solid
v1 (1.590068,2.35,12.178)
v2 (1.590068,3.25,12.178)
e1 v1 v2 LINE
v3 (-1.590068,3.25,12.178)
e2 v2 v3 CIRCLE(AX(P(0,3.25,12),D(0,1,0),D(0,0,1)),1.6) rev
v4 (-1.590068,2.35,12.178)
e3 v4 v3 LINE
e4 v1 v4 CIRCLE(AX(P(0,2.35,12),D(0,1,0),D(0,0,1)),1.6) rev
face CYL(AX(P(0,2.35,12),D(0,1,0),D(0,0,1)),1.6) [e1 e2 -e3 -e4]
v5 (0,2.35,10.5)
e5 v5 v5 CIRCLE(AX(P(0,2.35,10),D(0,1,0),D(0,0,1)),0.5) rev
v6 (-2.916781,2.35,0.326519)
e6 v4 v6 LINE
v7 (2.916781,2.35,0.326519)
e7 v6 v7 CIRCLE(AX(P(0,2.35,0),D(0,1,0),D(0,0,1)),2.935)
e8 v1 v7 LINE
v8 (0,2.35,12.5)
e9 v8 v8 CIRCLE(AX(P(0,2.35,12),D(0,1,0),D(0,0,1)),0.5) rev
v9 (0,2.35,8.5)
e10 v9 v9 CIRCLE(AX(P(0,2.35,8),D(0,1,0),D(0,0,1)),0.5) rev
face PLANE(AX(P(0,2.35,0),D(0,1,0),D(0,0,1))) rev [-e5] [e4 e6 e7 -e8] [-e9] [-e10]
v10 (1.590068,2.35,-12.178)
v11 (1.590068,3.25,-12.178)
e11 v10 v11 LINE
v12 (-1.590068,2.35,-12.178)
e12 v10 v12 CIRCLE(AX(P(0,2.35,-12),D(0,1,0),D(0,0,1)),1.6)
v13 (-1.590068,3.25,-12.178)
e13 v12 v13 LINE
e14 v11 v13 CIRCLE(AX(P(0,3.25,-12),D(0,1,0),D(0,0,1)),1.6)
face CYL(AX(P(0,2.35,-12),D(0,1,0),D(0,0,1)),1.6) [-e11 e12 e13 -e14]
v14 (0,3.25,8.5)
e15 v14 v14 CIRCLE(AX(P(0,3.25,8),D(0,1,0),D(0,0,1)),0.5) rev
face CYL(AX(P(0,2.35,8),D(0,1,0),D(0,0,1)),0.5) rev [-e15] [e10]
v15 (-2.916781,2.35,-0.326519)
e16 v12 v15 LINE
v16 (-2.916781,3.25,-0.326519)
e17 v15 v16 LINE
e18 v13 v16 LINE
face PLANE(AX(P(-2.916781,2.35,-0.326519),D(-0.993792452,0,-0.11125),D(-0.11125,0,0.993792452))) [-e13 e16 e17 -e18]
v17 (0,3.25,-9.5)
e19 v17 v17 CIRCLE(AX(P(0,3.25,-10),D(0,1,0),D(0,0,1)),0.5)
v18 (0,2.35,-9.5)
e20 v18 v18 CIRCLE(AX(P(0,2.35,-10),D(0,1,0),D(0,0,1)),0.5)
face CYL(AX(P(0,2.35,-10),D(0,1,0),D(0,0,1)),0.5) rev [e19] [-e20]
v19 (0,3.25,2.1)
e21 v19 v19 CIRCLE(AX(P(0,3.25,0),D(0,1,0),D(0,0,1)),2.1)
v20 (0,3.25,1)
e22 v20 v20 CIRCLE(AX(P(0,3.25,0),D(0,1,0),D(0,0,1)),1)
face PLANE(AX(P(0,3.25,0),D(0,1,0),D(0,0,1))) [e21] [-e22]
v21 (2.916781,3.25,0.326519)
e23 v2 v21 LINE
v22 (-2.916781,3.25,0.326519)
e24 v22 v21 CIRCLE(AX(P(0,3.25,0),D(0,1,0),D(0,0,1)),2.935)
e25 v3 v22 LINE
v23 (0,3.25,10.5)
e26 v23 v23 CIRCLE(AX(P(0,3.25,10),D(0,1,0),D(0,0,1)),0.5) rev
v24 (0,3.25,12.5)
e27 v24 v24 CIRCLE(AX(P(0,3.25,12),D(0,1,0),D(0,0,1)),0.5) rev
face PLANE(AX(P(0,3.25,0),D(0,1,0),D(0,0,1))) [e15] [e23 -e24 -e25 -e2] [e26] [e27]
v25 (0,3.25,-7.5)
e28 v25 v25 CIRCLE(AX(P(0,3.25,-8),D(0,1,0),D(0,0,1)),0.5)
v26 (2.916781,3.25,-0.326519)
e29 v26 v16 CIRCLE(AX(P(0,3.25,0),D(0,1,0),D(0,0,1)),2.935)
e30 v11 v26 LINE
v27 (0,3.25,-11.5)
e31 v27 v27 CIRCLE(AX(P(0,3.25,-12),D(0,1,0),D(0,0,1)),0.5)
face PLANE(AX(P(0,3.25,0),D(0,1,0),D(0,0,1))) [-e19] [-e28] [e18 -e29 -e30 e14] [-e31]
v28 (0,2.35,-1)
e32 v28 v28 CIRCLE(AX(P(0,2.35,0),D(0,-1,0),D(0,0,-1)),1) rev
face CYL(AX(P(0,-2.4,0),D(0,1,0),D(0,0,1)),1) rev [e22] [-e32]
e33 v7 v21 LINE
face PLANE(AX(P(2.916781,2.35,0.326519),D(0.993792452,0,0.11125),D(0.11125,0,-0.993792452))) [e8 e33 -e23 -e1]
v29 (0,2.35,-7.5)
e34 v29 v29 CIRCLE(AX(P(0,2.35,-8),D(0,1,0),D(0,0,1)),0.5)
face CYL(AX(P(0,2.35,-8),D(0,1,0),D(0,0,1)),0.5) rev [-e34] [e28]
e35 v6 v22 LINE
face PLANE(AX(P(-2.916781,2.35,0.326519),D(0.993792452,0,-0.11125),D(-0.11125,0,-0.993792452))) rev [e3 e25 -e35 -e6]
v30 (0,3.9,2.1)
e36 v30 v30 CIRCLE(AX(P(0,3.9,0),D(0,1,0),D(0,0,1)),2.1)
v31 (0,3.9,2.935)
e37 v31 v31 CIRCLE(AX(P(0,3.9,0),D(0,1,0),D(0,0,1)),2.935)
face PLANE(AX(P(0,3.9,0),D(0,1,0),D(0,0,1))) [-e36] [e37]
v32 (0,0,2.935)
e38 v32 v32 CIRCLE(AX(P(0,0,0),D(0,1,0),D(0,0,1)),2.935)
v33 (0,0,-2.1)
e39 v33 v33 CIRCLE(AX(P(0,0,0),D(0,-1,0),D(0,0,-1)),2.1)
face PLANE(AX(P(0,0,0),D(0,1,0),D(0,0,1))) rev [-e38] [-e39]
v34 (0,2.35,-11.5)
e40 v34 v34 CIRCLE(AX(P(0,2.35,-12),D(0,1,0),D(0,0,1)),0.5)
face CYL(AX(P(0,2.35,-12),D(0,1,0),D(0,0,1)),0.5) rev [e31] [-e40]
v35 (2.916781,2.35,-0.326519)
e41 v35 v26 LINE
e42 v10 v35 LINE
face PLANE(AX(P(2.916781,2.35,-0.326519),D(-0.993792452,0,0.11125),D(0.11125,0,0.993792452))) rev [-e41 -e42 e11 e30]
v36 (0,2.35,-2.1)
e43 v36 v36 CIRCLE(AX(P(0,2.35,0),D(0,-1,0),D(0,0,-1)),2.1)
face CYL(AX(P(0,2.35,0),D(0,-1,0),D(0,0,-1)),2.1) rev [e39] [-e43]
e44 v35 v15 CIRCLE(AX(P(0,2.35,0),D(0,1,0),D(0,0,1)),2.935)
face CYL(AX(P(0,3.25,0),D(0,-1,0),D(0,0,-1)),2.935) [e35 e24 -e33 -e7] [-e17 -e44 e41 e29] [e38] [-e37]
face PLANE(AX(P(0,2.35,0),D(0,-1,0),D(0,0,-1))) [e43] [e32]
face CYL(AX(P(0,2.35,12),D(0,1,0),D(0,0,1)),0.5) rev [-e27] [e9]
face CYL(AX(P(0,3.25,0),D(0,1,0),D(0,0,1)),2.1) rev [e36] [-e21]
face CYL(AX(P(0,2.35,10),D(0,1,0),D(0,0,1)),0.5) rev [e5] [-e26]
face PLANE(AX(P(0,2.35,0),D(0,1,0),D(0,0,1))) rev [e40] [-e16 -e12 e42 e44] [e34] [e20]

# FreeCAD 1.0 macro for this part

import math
import FreeCAD as App
import Part
import Sketcher
from FreeCAD import Vector

doc = App.newDocument("Part")
body = doc.addObject("PartDesign::Body", "Body")

# Sketch on XZ plane
sketch1 = doc.addObject("Sketcher::SketchObject", "Sketch")
body.addObject(sketch1)
sketch1.AttachmentSupport = (doc.XZ_Plane, [""])
sketch1.MapMode = "FlatFace"
sketch1.addGeometry(Part.Circle(Vector(0, 0, 0), Vector(0, 0, 1), 2.935), False)
sketch1.addConstraint([
    Sketcher.Constraint("Coincident", 0, 3, -1, 1),
    Sketcher.Constraint("Diameter", 0, 5.87),
])
pad1 = doc.addObject("PartDesign::Pad", "Pad")
body.addObject(pad1)
pad1.Profile = sketch1
pad1.Length = 3.25
pad1.Reversed = True

# Sketch on XZ plane
sketch2 = doc.addObject("Sketcher::SketchObject", "Sketch001")
body.addObject(sketch2)
sketch2.AttachmentSupport = (doc.XZ_Plane, [""])
sketch2.MapMode = "FlatFace"
sketch2.AttachmentOffset = App.Placement(Vector(0, 0, -3.25), App.Rotation())
sketch2.addGeometry([
    Part.ArcOfCircle(Part.Circle(Vector(0, 0, 0), Vector(0, 0, 1), 2.935), math.radians(-173.612622), math.radians(-90)),  # 0
    Part.ArcOfCircle(Part.Circle(Vector(0, 0, 0), Vector(0, 0, 1), 2.935), math.radians(-90), math.radians(-6.387378)),  # 1
    Part.LineSegment(Vector(2.916781, -0.326519, 0), Vector(1.590068, -12.178, 0)),  # 2
    Part.ArcOfCircle(Part.Circle(Vector(0, -12, 0), Vector(0, 0, 1), 1.6), math.radians(-173.612622), math.radians(-6.387378)),  # 3
    Part.LineSegment(Vector(-1.590068, -12.178, 0), Vector(-2.916781, -0.326519, 0)),  # 4
    Part.Circle(Vector(0, -8, 0), Vector(0, 0, 1), 0.5),  # 5
    Part.Circle(Vector(0, -10, 0), Vector(0, 0, 1), 0.5),  # 6
    Part.Circle(Vector(0, -12, 0), Vector(0, 0, 1), 0.5),  # 7
    Part.LineSegment(Vector(1.590068, 12.178, 0), Vector(2.916781, 0.326519, 0)),  # 8
    Part.ArcOfCircle(Part.Circle(Vector(0, 0, 0), Vector(0, 0, 1), 2.935), math.radians(6.387378), math.radians(173.612622)),  # 9
    Part.LineSegment(Vector(-2.916781, 0.326519, 0), Vector(-1.590068, 12.178, 0)),  # 10
    Part.ArcOfCircle(Part.Circle(Vector(0, 12, 0), Vector(0, 0, 1), 1.6), math.radians(6.387378), math.radians(173.612622)),  # 11
    Part.Circle(Vector(0, 12, 0), Vector(0, 0, 1), 0.5),  # 12
    Part.Circle(Vector(0, 10, 0), Vector(0, 0, 1), 0.5),  # 13
    Part.Circle(Vector(0, 8, 0), Vector(0, 0, 1), 0.5),  # 14
], False)
sketch2.addConstraint([
    Sketcher.Constraint("Tangent", 0, 2, 1, 1),
    Sketcher.Constraint("Tangent", 1, 2, 2, 1),
    Sketcher.Constraint("Tangent", 2, 2, 3, 2),
    Sketcher.Constraint("Tangent", 3, 1, 4, 1),
    Sketcher.Constraint("Tangent", 4, 2, 0, 1),
    Sketcher.Constraint("Tangent", 8, 2, 9, 1),
    Sketcher.Constraint("Tangent", 9, 2, 10, 1),
    Sketcher.Constraint("Tangent", 10, 2, 11, 2),
    Sketcher.Constraint("Tangent", 11, 1, 8, 1),
    Sketcher.Constraint("Coincident", 0, 3, -1, 1),
    Sketcher.Constraint("Coincident", 9, 3, -1, 1),
    Sketcher.Constraint("Coincident", 7, 3, 3, 3),
    Sketcher.Constraint("Coincident", 12, 3, 11, 3),
    Sketcher.Constraint("Equal", 0, 1),
    Sketcher.Constraint("Equal", 5, 6),
    Sketcher.Constraint("Equal", 6, 7),
    Sketcher.Constraint("Equal", 1, 9),
    Sketcher.Constraint("Equal", 3, 11),
    Sketcher.Constraint("Equal", 7, 12),
    Sketcher.Constraint("Equal", 12, 13),
    Sketcher.Constraint("Equal", 13, 14),
    Sketcher.Constraint("Symmetric", 3, 3, 11, 3, -1, 1),
    Sketcher.Constraint("Symmetric", 6, 3, 13, 3, -1, 1),
    Sketcher.Constraint("Symmetric", 5, 3, 14, 3, -1, 1),
    Sketcher.Constraint("PointOnObject", 3, 3, -2),
    Sketcher.Constraint("PointOnObject", 5, 3, -2),
    Sketcher.Constraint("PointOnObject", 6, 3, -2),
    Sketcher.Constraint("PointOnObject", 0, 2, -2),
    Sketcher.Constraint("Diameter", 5, 1.0),
    Sketcher.Constraint("Radius", 3, 1.6),
    Sketcher.Constraint("DistanceY", 3, 3, -1, 1, 12.0),
    Sketcher.Constraint("DistanceY", 5, 3, -1, 1, 8.0),
    Sketcher.Constraint("DistanceY", 6, 3, -1, 1, 10.0),
    Sketcher.Constraint("Radius", 0, 2.935),
])
pad2 = doc.addObject("PartDesign::Pad", "Pad001")
body.addObject(pad2)
pad2.Profile = sketch2
pad2.Length = 0.9

# Sketch on XZ plane
sketch3 = doc.addObject("Sketcher::SketchObject", "Sketch002")
body.addObject(sketch3)
sketch3.AttachmentSupport = (doc.XZ_Plane, [""])
sketch3.MapMode = "FlatFace"
sketch3.AttachmentOffset = App.Placement(Vector(0, 0, -3.25), App.Rotation())
sketch3.addGeometry(Part.Circle(Vector(0, 0, 0), Vector(0, 0, 1), 2.935), False)
sketch3.addConstraint([
    Sketcher.Constraint("Coincident", 0, 3, -1, 1),
    Sketcher.Constraint("Diameter", 0, 5.87),
])
pad3 = doc.addObject("PartDesign::Pad", "Pad002")
body.addObject(pad3)
pad3.Profile = sketch3
pad3.Length = 0.65
pad3.Reversed = True

# Sketch on XZ plane
sketch4 = doc.addObject("Sketcher::SketchObject", "Sketch003")
body.addObject(sketch4)
sketch4.AttachmentSupport = (doc.XZ_Plane, [""])
sketch4.MapMode = "FlatFace"
sketch4.AttachmentOffset = App.Placement(Vector(0, 0, -3.9), App.Rotation())
sketch4.addGeometry(Part.Circle(Vector(0, 0, 0), Vector(0, 0, 1), 2.1), False)
sketch4.addConstraint([
    Sketcher.Constraint("Coincident", 0, 3, -1, 1),
    Sketcher.Constraint("Diameter", 0, 4.2),
])
pocket1 = doc.addObject("PartDesign::Pocket", "Pocket")
body.addObject(pocket1)
pocket1.Profile = sketch4
pocket1.Length = 0.65
pocket1.Reversed = True

# Sketch on XZ plane
sketch5 = doc.addObject("Sketcher::SketchObject", "Sketch004")
body.addObject(sketch5)
sketch5.AttachmentSupport = (doc.XZ_Plane, [""])
sketch5.MapMode = "FlatFace"
sketch5.AttachmentOffset = App.Placement(Vector(0, 0, -3.25), App.Rotation())
sketch5.addGeometry(Part.Circle(Vector(0, 0, 0), Vector(0, 0, 1), 1), False)
sketch5.addConstraint([
    Sketcher.Constraint("Coincident", 0, 3, -1, 1),
    Sketcher.Constraint("Diameter", 0, 2.0),
])
pocket2 = doc.addObject("PartDesign::Pocket", "Pocket001")
body.addObject(pocket2)
pocket2.Profile = sketch5
pocket2.Length = 5.65
pocket2.Reversed = True

# Sketch on XZ plane
sketch6 = doc.addObject("Sketcher::SketchObject", "Sketch005")
body.addObject(sketch6)
sketch6.AttachmentSupport = (doc.XZ_Plane, [""])
sketch6.MapMode = "FlatFace"
sketch6.addGeometry(Part.Circle(Vector(0, 0, 0), Vector(0, 0, 1), 2.1), False)
sketch6.addConstraint([
    Sketcher.Constraint("Coincident", 0, 3, -1, 1),
    Sketcher.Constraint("Diameter", 0, 4.2),
])
pocket3 = doc.addObject("PartDesign::Pocket", "Pocket002")
body.addObject(pocket3)
pocket3.Profile = sketch6
pocket3.Length = 2.35

doc.recompute()
